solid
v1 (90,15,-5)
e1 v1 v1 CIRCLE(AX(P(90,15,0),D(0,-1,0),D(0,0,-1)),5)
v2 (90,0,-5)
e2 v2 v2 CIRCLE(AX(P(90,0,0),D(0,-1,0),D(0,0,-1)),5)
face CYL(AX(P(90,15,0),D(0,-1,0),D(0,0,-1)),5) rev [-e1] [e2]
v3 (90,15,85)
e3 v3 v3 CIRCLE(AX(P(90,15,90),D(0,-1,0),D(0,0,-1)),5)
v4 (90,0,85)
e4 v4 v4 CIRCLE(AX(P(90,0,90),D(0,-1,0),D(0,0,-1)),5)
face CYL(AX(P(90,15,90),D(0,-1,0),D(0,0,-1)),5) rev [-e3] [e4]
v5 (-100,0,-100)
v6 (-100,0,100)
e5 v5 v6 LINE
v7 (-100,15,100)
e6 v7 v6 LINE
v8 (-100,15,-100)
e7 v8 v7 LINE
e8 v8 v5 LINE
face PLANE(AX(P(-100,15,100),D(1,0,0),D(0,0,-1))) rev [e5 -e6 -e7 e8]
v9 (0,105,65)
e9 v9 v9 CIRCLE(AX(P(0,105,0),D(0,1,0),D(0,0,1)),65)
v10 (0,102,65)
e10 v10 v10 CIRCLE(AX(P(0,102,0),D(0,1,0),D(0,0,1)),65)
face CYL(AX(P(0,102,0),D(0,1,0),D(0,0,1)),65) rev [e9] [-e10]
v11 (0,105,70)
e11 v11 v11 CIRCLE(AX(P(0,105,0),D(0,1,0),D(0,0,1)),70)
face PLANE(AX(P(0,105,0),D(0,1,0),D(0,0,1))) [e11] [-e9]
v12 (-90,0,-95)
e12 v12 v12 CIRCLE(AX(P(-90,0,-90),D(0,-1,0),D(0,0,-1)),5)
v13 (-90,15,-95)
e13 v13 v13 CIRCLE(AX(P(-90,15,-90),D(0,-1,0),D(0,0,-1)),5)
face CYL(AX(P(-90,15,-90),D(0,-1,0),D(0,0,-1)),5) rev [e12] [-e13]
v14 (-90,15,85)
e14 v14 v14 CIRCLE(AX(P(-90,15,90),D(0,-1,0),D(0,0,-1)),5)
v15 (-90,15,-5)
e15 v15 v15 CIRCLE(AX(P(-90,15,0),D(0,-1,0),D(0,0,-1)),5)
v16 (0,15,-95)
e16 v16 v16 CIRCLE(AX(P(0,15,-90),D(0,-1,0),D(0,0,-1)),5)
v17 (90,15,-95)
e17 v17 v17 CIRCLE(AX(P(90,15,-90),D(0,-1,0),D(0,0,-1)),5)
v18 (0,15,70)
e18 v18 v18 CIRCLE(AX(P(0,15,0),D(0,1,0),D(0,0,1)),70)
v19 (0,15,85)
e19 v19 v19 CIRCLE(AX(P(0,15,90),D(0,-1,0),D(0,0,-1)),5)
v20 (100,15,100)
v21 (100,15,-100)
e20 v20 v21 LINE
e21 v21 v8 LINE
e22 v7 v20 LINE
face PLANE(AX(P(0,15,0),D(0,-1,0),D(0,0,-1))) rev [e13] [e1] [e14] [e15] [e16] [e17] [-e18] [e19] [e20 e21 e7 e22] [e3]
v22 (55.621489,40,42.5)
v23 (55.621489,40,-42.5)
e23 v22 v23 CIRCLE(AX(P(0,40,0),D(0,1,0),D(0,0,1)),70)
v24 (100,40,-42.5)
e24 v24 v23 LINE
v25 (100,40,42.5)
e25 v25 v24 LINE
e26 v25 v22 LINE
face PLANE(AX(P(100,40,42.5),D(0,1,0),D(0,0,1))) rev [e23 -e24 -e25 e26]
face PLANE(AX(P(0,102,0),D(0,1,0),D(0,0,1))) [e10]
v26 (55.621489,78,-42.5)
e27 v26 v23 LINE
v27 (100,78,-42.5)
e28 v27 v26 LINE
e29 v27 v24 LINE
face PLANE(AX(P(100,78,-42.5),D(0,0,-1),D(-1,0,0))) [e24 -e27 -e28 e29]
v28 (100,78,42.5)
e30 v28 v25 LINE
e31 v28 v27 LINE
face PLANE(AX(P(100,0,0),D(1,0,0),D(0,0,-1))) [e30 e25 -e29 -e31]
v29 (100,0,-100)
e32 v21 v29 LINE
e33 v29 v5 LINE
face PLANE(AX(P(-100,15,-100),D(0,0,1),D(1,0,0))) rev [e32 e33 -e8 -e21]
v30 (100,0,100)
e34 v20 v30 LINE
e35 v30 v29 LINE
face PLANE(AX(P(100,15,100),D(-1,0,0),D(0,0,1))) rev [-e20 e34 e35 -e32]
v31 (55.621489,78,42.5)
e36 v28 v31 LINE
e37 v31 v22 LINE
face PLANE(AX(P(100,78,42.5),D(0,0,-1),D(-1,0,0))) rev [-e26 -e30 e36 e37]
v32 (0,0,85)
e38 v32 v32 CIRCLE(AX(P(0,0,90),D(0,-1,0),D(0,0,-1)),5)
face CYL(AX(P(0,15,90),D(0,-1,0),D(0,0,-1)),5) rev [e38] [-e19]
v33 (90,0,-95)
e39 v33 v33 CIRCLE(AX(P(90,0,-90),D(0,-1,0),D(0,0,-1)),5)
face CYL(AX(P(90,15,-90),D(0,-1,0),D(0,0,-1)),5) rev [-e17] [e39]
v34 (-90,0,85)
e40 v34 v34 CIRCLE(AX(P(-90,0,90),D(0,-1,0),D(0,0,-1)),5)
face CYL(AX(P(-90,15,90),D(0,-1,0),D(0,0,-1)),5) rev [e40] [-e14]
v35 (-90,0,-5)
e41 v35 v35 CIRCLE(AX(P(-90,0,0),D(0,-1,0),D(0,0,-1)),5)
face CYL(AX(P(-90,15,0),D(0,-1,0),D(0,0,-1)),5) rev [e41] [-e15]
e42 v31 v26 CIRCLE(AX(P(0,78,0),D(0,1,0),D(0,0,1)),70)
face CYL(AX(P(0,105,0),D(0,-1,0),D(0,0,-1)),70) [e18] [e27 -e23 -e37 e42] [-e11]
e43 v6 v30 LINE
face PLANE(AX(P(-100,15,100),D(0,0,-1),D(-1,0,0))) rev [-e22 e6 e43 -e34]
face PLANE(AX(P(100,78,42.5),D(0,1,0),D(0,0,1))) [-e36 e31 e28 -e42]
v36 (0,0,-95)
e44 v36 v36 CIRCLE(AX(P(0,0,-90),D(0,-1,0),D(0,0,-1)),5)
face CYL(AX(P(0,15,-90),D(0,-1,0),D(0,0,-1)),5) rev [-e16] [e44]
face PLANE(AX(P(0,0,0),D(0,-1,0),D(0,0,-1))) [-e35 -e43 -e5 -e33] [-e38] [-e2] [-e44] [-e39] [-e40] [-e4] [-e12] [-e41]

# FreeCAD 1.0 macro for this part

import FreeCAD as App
import Part
import Sketcher
Q = App.Units.Quantity

doc = App.newDocument("Part")
params = doc.addObject("Spreadsheet::Sheet", "Params")
for row, (alias, value) in enumerate([
    ("sketch1_width", "200 mm"),
    ("pad1_length", "15 mm"),
    ("sketch2_diameter", "140 mm"),
    ("pad2_length", "90 mm"),
    ("sketch3_diameter", "130 mm"),
    ("pocket1_length", "3 mm"),
    ("sketch4_width", "38 mm"),
    ("sketch4_height", "85 mm"),
    ("pad3_length", "100 mm"),
    ("sketch5_diameter", "10 mm"),
    ("pocket2_length", "15 mm"),
], start=1):
    params.set(f"A{row}", alias)
    params.set(f"B{row}", "=" + value)
    params.setAlias(f"B{row}", alias)

body = doc.addObject("PartDesign::Body", "Body")

# Sketch on XZ plane
sketch1 = doc.addObject("Sketcher::SketchObject", "Sketch")
body.addObject(sketch1)
sketch1.AttachmentSupport = (doc.XZ_Plane, [""])
sketch1.MapMode = "FlatFace"
sketch1.addGeometry([
    Part.LineSegment(App.Vector(-100, -100, 0), App.Vector(-100, 100, 0)),
    Part.LineSegment(App.Vector(-100, 100, 0), App.Vector(100, 100, 0)),
    Part.LineSegment(App.Vector(100, 100, 0), App.Vector(100, -100, 0)),
    Part.LineSegment(App.Vector(100, -100, 0), App.Vector(-100, -100, 0)),
], False)
sketch1.addConstraint([
    Sketcher.Constraint("Coincident", 0, 2, 1, 1),
    Sketcher.Constraint("Coincident", 1, 2, 2, 1),
    Sketcher.Constraint("Coincident", 2, 2, 3, 1),
    Sketcher.Constraint("Coincident", 3, 2, 0, 1),
    Sketcher.Constraint("Vertical", 0),
    Sketcher.Constraint("Horizontal", 1),
    Sketcher.Constraint("Vertical", 2),
    Sketcher.Constraint("Horizontal", 3),
    Sketcher.Constraint("Symmetric", 0, 2, 2, 2, -1, 1),
    Sketcher.Constraint("Equal", 3, 0),
    Sketcher.Constraint("DistanceX", 1, 1, 1, 2, Q("200 mm")),
])
sketch1.setExpression("Constraints[10]", "Params.sketch1_width")
pad1 = doc.addObject("PartDesign::Pad", "Pad")
body.addObject(pad1)
pad1.Profile = sketch1
pad1.setExpression("Length", "Params.pad1_length")
pad1.Reversed = True

# Sketch on XZ plane
sketch2 = doc.addObject("Sketcher::SketchObject", "Sketch001")
body.addObject(sketch2)
sketch2.AttachmentSupport = (doc.XZ_Plane, [""])
sketch2.MapMode = "FlatFace"
sketch2.AttachmentOffset = App.Placement(App.Vector(0, 0, -15), App.Rotation())
sketch2.addGeometry(Part.Circle(App.Vector(0, 0, 0), App.Vector(0, 0, 1), 70), False)
sketch2.addConstraint([
    Sketcher.Constraint("Coincident", 0, 3, -1, 1),
    Sketcher.Constraint("Diameter", 0, Q("140 mm")),
])
sketch2.setExpression("Constraints[1]", "Params.sketch2_diameter")
pad2 = doc.addObject("PartDesign::Pad", "Pad001")
body.addObject(pad2)
pad2.Profile = sketch2
pad2.setExpression("Length", "Params.pad2_length")
pad2.Reversed = True

# Sketch on XZ plane
sketch3 = doc.addObject("Sketcher::SketchObject", "Sketch002")
body.addObject(sketch3)
sketch3.AttachmentSupport = (doc.XZ_Plane, [""])
sketch3.MapMode = "FlatFace"
sketch3.AttachmentOffset = App.Placement(App.Vector(0, 0, -105), App.Rotation())
sketch3.addGeometry(Part.Circle(App.Vector(0, 0, 0), App.Vector(0, 0, 1), 65), False)
sketch3.addConstraint([
    Sketcher.Constraint("Coincident", 0, 3, -1, 1),
    Sketcher.Constraint("Diameter", 0, Q("130 mm")),
])
sketch3.setExpression("Constraints[1]", "Params.sketch3_diameter")
pocket1 = doc.addObject("PartDesign::Pocket", "Pocket")
body.addObject(pocket1)
pocket1.Profile = sketch3
pocket1.setExpression("Length", "Params.pocket1_length")
pocket1.Reversed = True

# Sketch on YZ plane
sketch4 = doc.addObject("Sketcher::SketchObject", "Sketch003")
body.addObject(sketch4)
sketch4.AttachmentSupport = (doc.YZ_Plane, [""])
sketch4.MapMode = "FlatFace"
sketch4.addGeometry([
    Part.LineSegment(App.Vector(78, 42, 0), App.Vector(40, 42, 0)),
    Part.LineSegment(App.Vector(40, 42, 0), App.Vector(40, -42, 0)),
    Part.LineSegment(App.Vector(40, -42, 0), App.Vector(78, -42, 0)),
    Part.LineSegment(App.Vector(78, -42, 0), App.Vector(78, 42, 0)),
], False)
sketch4.addConstraint([
    Sketcher.Constraint("Coincident", 0, 2, 1, 1),
    Sketcher.Constraint("Coincident", 1, 2, 2, 1),
    Sketcher.Constraint("Coincident", 2, 2, 3, 1),
    Sketcher.Constraint("Coincident", 3, 2, 0, 1),
    Sketcher.Constraint("Horizontal", 0),
    Sketcher.Constraint("Vertical", 1),
    Sketcher.Constraint("Horizontal", 2),
    Sketcher.Constraint("Vertical", 3),
    Sketcher.Constraint("DistanceX", 0, 2, 0, 1, Q("38 mm")),
    Sketcher.Constraint("DistanceY", 1, 2, 1, 1, Q("85 mm")),
    Sketcher.Constraint("DistanceX", -1, 1, 0, 2, Q("40 mm")),
    Sketcher.Constraint("DistanceY", -1, 1, 0, 2, Q("42.5 mm")),
])
sketch4.setExpression("Constraints[8]", "Params.sketch4_width")
sketch4.setExpression("Constraints[9]", "Params.sketch4_height")
pad3 = doc.addObject("PartDesign::Pad", "Pad002")
body.addObject(pad3)
pad3.Profile = sketch4
pad3.setExpression("Length", "Params.pad3_length")

# Sketch on XZ plane
sketch5 = doc.addObject("Sketcher::SketchObject", "Sketch004")
body.addObject(sketch5)
sketch5.AttachmentSupport = (doc.XZ_Plane, [""])
sketch5.MapMode = "FlatFace"
sketch5.addGeometry([
    Part.Circle(App.Vector(-90, 90, 0), App.Vector(0, 0, 1), 5),  # 0
    Part.Circle(App.Vector(0, 90, 0), App.Vector(0, 0, 1), 5),  # 1
    Part.Circle(App.Vector(90, 90, 0), App.Vector(0, 0, 1), 5),  # 2
    Part.Circle(App.Vector(90, 0, 0), App.Vector(0, 0, 1), 5),  # 3
    Part.Circle(App.Vector(90, -90, 0), App.Vector(0, 0, 1), 5),  # 4
    Part.Circle(App.Vector(-90, -90, 0), App.Vector(0, 0, 1), 5),  # 5
    Part.Circle(App.Vector(-90, 0, 0), App.Vector(0, 0, 1), 5),  # 6
    Part.Circle(App.Vector(0, -90, 0), App.Vector(0, 0, 1), 5),  # 7
], False)
sketch5.addConstraint([
    Sketcher.Constraint("Equal", 0, 1),
    Sketcher.Constraint("Equal", 1, 2),
    Sketcher.Constraint("Equal", 2, 3),
    Sketcher.Constraint("Equal", 3, 4),
    Sketcher.Constraint("Equal", 4, 5),
    Sketcher.Constraint("Equal", 5, 6),
    Sketcher.Constraint("Equal", 6, 7),
    Sketcher.Constraint("Symmetric", 0, 3, 4, 3, -1, 1),
    Sketcher.Constraint("Symmetric", 2, 3, 5, 3, -1, 1),
    Sketcher.Constraint("Symmetric", 3, 3, 6, 3, -1, 1),
    Sketcher.Constraint("Symmetric", 1, 3, 7, 3, -1, 1),
    Sketcher.Constraint("Symmetric", 0, 3, 2, 3, -2),
    Sketcher.Constraint("PointOnObject", 1, 3, -2),
    Sketcher.Constraint("PointOnObject", 3, 3, -1),
    Sketcher.Constraint("Horizontal", 0, 3, 1, 3),
    Sketcher.Constraint("Vertical", 2, 3, 3, 3),
    Sketcher.Constraint("Diameter", 0, Q("10 mm")),
    Sketcher.Constraint("DistanceX", 0, 3, -1, 1, Q("90 mm")),
    Sketcher.Constraint("DistanceY", -1, 1, 0, 3, Q("90 mm")),
])
sketch5.setExpression("Constraints[16]", "Params.sketch5_diameter")
pocket2 = doc.addObject("PartDesign::Pocket", "Pocket001")
body.addObject(pocket2)
pocket2.Profile = sketch5
pocket2.setExpression("Length", "Params.pocket2_length")

doc.recompute()
